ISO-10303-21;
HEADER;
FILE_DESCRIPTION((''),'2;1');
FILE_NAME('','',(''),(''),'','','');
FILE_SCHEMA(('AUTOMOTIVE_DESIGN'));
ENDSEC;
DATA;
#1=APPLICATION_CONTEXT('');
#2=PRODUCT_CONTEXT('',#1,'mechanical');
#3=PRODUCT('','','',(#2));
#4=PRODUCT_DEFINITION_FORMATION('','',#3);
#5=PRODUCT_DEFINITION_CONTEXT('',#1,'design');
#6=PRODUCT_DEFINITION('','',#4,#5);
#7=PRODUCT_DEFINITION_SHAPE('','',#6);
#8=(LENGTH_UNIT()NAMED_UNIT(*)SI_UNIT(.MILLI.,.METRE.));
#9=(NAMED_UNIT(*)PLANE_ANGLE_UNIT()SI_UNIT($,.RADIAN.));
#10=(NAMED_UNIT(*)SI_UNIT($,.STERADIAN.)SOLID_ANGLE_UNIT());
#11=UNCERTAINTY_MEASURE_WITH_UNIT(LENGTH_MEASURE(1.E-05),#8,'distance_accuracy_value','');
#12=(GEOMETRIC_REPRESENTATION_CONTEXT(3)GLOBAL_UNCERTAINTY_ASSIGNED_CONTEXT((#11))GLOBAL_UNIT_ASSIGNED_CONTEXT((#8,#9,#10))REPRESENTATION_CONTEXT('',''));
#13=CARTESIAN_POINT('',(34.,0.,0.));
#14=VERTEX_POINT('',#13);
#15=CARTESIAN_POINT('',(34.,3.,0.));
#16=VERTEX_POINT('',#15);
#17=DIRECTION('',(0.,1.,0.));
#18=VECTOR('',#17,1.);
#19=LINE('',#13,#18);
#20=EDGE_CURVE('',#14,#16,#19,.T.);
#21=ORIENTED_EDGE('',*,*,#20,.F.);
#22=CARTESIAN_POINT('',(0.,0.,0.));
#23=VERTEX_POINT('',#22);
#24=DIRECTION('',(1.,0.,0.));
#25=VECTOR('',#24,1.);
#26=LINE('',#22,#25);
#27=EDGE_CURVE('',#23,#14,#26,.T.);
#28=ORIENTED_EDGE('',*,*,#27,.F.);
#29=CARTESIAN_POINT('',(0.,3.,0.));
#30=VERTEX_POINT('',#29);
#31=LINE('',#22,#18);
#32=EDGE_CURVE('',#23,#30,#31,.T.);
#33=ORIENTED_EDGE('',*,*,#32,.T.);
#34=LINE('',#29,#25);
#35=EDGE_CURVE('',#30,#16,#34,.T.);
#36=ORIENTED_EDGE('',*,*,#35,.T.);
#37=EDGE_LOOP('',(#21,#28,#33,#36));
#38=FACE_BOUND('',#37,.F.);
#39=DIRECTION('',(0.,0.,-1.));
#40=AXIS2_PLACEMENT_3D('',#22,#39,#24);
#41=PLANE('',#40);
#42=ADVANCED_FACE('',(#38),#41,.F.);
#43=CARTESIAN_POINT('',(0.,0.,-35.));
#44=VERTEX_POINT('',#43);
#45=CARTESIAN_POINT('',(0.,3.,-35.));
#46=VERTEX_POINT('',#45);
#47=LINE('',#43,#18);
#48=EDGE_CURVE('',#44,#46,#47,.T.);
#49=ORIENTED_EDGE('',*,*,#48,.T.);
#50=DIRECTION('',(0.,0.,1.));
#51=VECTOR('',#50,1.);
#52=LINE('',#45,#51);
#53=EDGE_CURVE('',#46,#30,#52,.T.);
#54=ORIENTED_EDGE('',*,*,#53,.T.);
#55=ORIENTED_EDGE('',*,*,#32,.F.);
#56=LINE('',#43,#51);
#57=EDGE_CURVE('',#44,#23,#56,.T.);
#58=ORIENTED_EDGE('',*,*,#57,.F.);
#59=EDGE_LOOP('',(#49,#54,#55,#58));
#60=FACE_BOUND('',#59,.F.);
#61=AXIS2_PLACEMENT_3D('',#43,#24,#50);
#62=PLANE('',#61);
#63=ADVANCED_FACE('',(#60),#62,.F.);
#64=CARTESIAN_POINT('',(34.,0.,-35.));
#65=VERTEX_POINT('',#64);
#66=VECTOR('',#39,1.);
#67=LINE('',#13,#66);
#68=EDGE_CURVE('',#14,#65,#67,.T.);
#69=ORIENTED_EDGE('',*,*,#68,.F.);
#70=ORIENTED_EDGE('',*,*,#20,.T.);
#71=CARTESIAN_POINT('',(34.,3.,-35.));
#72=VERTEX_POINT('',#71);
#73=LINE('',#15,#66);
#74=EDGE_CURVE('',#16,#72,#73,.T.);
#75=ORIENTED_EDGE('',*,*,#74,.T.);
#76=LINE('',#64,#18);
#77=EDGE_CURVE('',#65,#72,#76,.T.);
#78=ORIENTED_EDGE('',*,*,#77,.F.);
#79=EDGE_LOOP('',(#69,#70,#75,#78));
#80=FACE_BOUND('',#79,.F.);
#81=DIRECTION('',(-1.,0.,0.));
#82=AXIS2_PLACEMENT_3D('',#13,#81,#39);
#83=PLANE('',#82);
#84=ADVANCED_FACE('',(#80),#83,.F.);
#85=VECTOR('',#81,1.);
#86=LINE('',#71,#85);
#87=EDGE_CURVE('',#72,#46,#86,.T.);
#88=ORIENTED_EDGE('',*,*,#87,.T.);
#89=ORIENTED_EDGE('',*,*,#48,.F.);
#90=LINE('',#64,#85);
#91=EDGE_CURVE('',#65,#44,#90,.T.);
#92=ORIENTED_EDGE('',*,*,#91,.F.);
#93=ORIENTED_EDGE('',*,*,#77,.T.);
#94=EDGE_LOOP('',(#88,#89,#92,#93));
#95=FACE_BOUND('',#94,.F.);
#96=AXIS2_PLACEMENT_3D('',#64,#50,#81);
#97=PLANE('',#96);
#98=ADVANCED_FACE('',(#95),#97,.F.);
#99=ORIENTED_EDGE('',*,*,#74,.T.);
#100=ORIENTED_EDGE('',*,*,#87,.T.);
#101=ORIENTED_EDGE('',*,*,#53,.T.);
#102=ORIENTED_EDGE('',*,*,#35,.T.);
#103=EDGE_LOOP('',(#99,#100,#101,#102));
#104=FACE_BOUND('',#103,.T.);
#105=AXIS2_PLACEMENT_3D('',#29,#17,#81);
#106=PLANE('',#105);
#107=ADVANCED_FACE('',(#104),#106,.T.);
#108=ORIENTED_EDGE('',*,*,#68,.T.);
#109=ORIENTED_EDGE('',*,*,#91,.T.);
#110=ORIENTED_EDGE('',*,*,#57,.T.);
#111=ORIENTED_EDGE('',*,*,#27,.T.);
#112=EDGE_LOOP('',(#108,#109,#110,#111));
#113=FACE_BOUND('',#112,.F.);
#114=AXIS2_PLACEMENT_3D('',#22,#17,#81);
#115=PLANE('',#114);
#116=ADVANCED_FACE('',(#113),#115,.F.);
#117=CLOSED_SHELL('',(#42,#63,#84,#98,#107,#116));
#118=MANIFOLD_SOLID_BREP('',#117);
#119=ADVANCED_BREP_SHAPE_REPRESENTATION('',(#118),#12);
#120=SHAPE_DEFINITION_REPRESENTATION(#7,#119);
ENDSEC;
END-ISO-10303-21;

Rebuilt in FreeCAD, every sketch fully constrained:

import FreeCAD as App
import Part
import Sketcher
from FreeCAD import Vector


def add_polygon(sketch, points):
    """Adds a closed chain of lines whose ends are joined by coincident constraints."""
    first, n = sketch.GeometryCount, len(points)
    for a, b in zip(points, points[1:] + points[:1]):
        sketch.addGeometry(Part.LineSegment(App.Vector(*a, 0), App.Vector(*b, 0)), False)
    for i in range(n):
        sketch.addConstraint(Sketcher.Constraint("Coincident", first + i, 2, first + (i + 1) % n, 1))

doc = App.newDocument("Part")
body = doc.addObject("PartDesign::Body", "Body")

# Sketch on XZ plane
sketch1 = body.newObject("Sketcher::SketchObject", "Sketch")
sketch1.AttachmentSupport = (doc.getObject("XZ_Plane"), [""])
sketch1.MapMode = "FlatFace"
add_polygon(sketch1, [(0, -35), (0, 0), (34, 0), (34, -35)])  # lines 0-3
sketch1.addConstraint([
    Sketcher.Constraint("Vertical", 0),
    Sketcher.Constraint("Horizontal", 1),
    Sketcher.Constraint("Vertical", 2),
    Sketcher.Constraint("Horizontal", 3),
    Sketcher.Constraint("Coincident", 0, 2, -1, 1),
    Sketcher.Constraint("DistanceX", 1, 1, 1, 2, 34.0),
    Sketcher.Constraint("DistanceY", 0, 1, 0, 2, 35.0),
])
pad1 = body.newObject("PartDesign::Pad", "Pad")
pad1.Profile = sketch1
pad1.Length = 3
pad1.Reversed = True

doc.recompute()
